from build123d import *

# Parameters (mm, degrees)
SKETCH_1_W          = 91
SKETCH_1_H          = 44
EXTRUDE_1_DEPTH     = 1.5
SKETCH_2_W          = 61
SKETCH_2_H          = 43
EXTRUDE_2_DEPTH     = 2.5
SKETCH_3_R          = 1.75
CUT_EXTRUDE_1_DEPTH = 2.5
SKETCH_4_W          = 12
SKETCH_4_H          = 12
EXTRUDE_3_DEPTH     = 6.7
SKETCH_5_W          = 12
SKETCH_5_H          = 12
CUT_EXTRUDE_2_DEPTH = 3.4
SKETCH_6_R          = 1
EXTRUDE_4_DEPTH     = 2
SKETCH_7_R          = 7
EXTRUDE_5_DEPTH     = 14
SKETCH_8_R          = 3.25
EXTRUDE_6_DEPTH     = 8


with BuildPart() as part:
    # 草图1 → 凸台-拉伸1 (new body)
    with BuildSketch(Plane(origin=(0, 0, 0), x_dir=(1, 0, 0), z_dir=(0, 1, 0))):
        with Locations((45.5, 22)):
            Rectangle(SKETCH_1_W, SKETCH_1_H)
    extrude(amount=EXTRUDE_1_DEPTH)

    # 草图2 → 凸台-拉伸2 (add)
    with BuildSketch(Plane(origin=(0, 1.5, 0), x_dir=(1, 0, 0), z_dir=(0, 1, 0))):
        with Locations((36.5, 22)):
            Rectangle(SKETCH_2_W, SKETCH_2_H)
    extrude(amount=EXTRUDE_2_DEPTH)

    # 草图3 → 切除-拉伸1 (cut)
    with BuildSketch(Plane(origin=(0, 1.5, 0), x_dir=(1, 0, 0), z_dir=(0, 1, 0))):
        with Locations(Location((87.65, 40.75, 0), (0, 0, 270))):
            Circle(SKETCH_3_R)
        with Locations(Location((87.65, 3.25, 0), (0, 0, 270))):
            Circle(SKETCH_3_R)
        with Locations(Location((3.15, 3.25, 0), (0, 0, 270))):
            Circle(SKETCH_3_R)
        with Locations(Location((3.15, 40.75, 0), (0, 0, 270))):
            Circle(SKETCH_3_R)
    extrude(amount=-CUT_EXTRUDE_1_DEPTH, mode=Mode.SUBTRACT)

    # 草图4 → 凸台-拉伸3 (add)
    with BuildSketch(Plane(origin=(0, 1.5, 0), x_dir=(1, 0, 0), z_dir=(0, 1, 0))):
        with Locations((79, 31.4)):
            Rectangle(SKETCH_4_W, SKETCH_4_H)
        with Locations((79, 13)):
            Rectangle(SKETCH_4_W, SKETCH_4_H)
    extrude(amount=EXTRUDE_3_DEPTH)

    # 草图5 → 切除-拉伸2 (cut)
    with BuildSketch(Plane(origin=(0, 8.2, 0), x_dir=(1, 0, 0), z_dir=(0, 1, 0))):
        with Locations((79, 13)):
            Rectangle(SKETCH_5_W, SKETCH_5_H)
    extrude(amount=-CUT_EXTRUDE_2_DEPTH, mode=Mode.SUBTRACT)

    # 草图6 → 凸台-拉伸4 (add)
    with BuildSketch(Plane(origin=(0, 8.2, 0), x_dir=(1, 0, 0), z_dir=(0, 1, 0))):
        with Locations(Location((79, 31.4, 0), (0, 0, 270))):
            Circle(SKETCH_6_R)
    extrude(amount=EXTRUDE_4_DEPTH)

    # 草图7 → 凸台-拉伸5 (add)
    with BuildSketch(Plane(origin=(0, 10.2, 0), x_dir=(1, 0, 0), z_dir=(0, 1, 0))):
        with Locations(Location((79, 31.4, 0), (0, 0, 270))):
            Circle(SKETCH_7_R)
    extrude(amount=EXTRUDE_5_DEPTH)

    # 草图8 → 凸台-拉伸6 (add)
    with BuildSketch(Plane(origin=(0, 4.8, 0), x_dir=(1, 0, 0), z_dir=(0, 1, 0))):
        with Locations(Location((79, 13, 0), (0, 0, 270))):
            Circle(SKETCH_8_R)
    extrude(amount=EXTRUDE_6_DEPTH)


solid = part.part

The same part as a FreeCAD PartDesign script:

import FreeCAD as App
import Part
import Sketcher
from FreeCAD import Vector


def add_polygon(sketch, points):
    """Adds a closed chain of lines whose ends are joined by coincident constraints."""
    first, n = sketch.GeometryCount, len(points)
    for a, b in zip(points, points[1:] + points[:1]):
        sketch.addGeometry(Part.LineSegment(App.Vector(*a, 0), App.Vector(*b, 0)), False)
    for i in range(n):
        sketch.addConstraint(Sketcher.Constraint("Coincident", first + i, 2, first + (i + 1) % n, 1))

doc = App.newDocument("Part")
params = doc.addObject("Spreadsheet::Sheet", "Params")
for row, (alias, value) in enumerate([
    ("sketch1_width", "91 mm"),
    ("sketch1_height", "44 mm"),
    ("pad1_length", "1.5 mm"),
    ("sketch2_width", "61 mm"),
    ("sketch2_height", "43 mm"),
    ("pad2_length", "2.5 mm"),
    ("sketch3_diameter", "3.5 mm"),
    ("pocket1_length", "2.5 mm"),
    ("sketch4_width", "12 mm"),
    ("pad3_length", "6.7 mm"),
    ("sketch5_width", "12 mm"),
    ("pocket2_length", "3.4 mm"),
    ("sketch6_diameter", "2 mm"),
    ("pad4_length", "2 mm"),
    ("sketch7_diameter", "14 mm"),
    ("pad5_length", "14 mm"),
    ("sketch8_diameter", "6.5 mm"),
    ("pad6_length", "8 mm"),
], start=1):
    params.set(f"A{row}", alias)
    params.set(f"B{row}", "=" + value)
    params.setAlias(f"B{row}", alias)

body = doc.addObject("PartDesign::Body", "Body")

# Sketch on XZ plane
sketch1 = body.newObject("Sketcher::SketchObject", "Sketch")
sketch1.AttachmentSupport = (doc.getObject("XZ_Plane"), [""])
sketch1.MapMode = "FlatFace"
add_polygon(sketch1, [(0, -44), (0, 0), (91, 0), (91, -44)])  # lines 0-3
sketch1.addConstraint(Sketcher.Constraint("Vertical", 0))
sketch1.addConstraint(Sketcher.Constraint("Horizontal", 1))
sketch1.addConstraint(Sketcher.Constraint("Vertical", 2))
sketch1.addConstraint(Sketcher.Constraint("Horizontal", 3))
sketch1.addConstraint(Sketcher.Constraint("Coincident", 0, 2, -1, 1))
sketch1.addConstraint(Sketcher.Constraint("DistanceX", 1, 1, 1, 2, 91.0))
sketch1.addConstraint(Sketcher.Constraint("DistanceY", 0, 1, 0, 2, 44.0))
sketch1.setExpression("Constraints[9]", "Params.sketch1_width")
sketch1.setExpression("Constraints[10]", "Params.sketch1_height")
pad1 = body.newObject("PartDesign::Pad", "Pad")
pad1.Profile = sketch1
pad1.setExpression("Length", "Params.pad1_length")
pad1.Reversed = True

# Sketch on XZ plane
sketch2 = body.newObject("Sketcher::SketchObject", "Sketch001")
sketch2.AttachmentSupport = (doc.getObject("XZ_Plane"), [""])
sketch2.MapMode = "FlatFace"
sketch2.AttachmentOffset = App.Placement(Vector(0, 0, -1.5), App.Rotation())
add_polygon(sketch2, [(6, -43.5), (6, -0.5), (67, -0.5), (67, -43.5)])  # lines 0-3
sketch2.addConstraint(Sketcher.Constraint("Vertical", 0))
sketch2.addConstraint(Sketcher.Constraint("Horizontal", 1))
sketch2.addConstraint(Sketcher.Constraint("Vertical", 2))
sketch2.addConstraint(Sketcher.Constraint("Horizontal", 3))
sketch2.addConstraint(Sketcher.Constraint("DistanceX", 1, 1, 1, 2, 61.0))
sketch2.addConstraint(Sketcher.Constraint("DistanceY", 0, 1, 0, 2, 43.0))
sketch2.addConstraint(Sketcher.Constraint("DistanceX", -1, 1, 0, 2, 6.0))
sketch2.addConstraint(Sketcher.Constraint("DistanceY", 0, 2, -1, 1, 0.5))
sketch2.setExpression("Constraints[8]", "Params.sketch2_width")
sketch2.setExpression("Constraints[9]", "Params.sketch2_height")
pad2 = body.newObject("PartDesign::Pad", "Pad001")
pad2.Profile = sketch2
pad2.setExpression("Length", "Params.pad2_length")
pad2.Reversed = True

# Sketch on XZ plane
sketch3 = body.newObject("Sketcher::SketchObject", "Sketch002")
sketch3.AttachmentSupport = (doc.getObject("XZ_Plane"), [""])
sketch3.MapMode = "FlatFace"
sketch3.AttachmentOffset = App.Placement(Vector(0, 0, -1.5), App.Rotation())
sketch3.addGeometry(Part.Circle(Vector(87.65, -40.75, 0), Vector(0, 0, 1), 1.75), False)
sketch3.addGeometry(Part.Circle(Vector(87.65, -3.25, 0), Vector(0, 0, 1), 1.75), False)
sketch3.addGeometry(Part.Circle(Vector(3.15, -3.25, 0), Vector(0, 0, 1), 1.75), False)
sketch3.addGeometry(Part.Circle(Vector(3.15, -40.75, 0), Vector(0, 0, 1), 1.75), False)
sketch3.addConstraint(Sketcher.Constraint("Equal", 0, 1))
sketch3.addConstraint(Sketcher.Constraint("Equal", 1, 2))
sketch3.addConstraint(Sketcher.Constraint("Equal", 2, 3))
sketch3.addConstraint(Sketcher.Constraint("Horizontal", 1, 3, 2, 3))
sketch3.addConstraint(Sketcher.Constraint("Horizontal", 0, 3, 3, 3))
sketch3.addConstraint(Sketcher.Constraint("Vertical", 0, 3, 1, 3))
sketch3.addConstraint(Sketcher.Constraint("Vertical", 2, 3, 3, 3))
sketch3.addConstraint(Sketcher.Constraint("Diameter", 0, 3.5))
sketch3.addConstraint(Sketcher.Constraint("DistanceY", 0, 3, 1, 3, 37.5))
sketch3.addConstraint(Sketcher.Constraint("DistanceX", 2, 3, 1, 3, 84.5))
sketch3.addConstraint(Sketcher.Constraint("DistanceX", -1, 1, 0, 3, 87.65))
sketch3.addConstraint(Sketcher.Constraint("DistanceY", 0, 3, -1, 1, 40.75))
sketch3.setExpression("Constraints[7]", "Params.sketch3_diameter")
pocket1 = body.newObject("PartDesign::Pocket", "Pocket")
pocket1.Profile = sketch3
pocket1.setExpression("Length", "Params.pocket1_length")
pocket1.Reversed = True

# Sketch on XZ plane
sketch4 = body.newObject("Sketcher::SketchObject", "Sketch003")
sketch4.AttachmentSupport = (doc.getObject("XZ_Plane"), [""])
sketch4.MapMode = "FlatFace"
sketch4.AttachmentOffset = App.Placement(Vector(0, 0, -1.5), App.Rotation())
add_polygon(sketch4, [(73, -37.4), (73, -25.4), (85, -25.4), (85, -37.4)])  # lines 0-3
add_polygon(sketch4, [(73, -19), (73, -7), (85, -7), (85, -19)])  # lines 4-7
sketch4.addConstraint(Sketcher.Constraint("Vertical", 0))
sketch4.addConstraint(Sketcher.Constraint("Horizontal", 1))
sketch4.addConstraint(Sketcher.Constraint("Vertical", 2))
sketch4.addConstraint(Sketcher.Constraint("Horizontal", 3))
sketch4.addConstraint(Sketcher.Constraint("Vertical", 4))
sketch4.addConstraint(Sketcher.Constraint("Horizontal", 5))
sketch4.addConstraint(Sketcher.Constraint("Vertical", 6))
sketch4.addConstraint(Sketcher.Constraint("Horizontal", 7))
sketch4.addConstraint(Sketcher.Constraint("Vertical", 3, 2, 4, 2))
sketch4.addConstraint(Sketcher.Constraint("Vertical", 2, 2, 5, 2))
sketch4.addConstraint(Sketcher.Constraint("Equal", 7, 0))
sketch4.addConstraint(Sketcher.Constraint("Equal", 2, 4))
sketch4.addConstraint(Sketcher.Constraint("DistanceX", 1, 1, 1, 2, 12.0))
sketch4.addConstraint(Sketcher.Constraint("DistanceX", -1, 1, 0, 2, 73.0))
sketch4.addConstraint(Sketcher.Constraint("DistanceY", 4, 2, -1, 1, 7.0))
sketch4.addConstraint(Sketcher.Constraint("DistanceY", 0, 2, -1, 1, 25.4))
sketch4.setExpression("Constraints[20]", "Params.sketch4_width")
pad3 = body.newObject("PartDesign::Pad", "Pad002")
pad3.Profile = sketch4
pad3.setExpression("Length", "Params.pad3_length")
pad3.Reversed = True

# Sketch on XZ plane
sketch5 = body.newObject("Sketcher::SketchObject", "Sketch004")
sketch5.AttachmentSupport = (doc.getObject("XZ_Plane"), [""])
sketch5.MapMode = "FlatFace"
sketch5.AttachmentOffset = App.Placement(Vector(0, 0, -8.2), App.Rotation())
add_polygon(sketch5, [(73, -19), (73, -7), (85, -7), (85, -19)])  # lines 0-3
sketch5.addConstraint(Sketcher.Constraint("Vertical", 0))
sketch5.addConstraint(Sketcher.Constraint("Horizontal", 1))
sketch5.addConstraint(Sketcher.Constraint("Vertical", 2))
sketch5.addConstraint(Sketcher.Constraint("Horizontal", 3))
sketch5.addConstraint(Sketcher.Constraint("Equal", 3, 0))
sketch5.addConstraint(Sketcher.Constraint("DistanceX", 1, 1, 1, 2, 12.0))
sketch5.addConstraint(Sketcher.Constraint("DistanceX", -1, 1, 0, 2, 73.0))
sketch5.addConstraint(Sketcher.Constraint("DistanceY", 0, 2, -1, 1, 7.0))
sketch5.setExpression("Constraints[9]", "Params.sketch5_width")
pocket2 = body.newObject("PartDesign::Pocket", "Pocket001")
pocket2.Profile = sketch5
pocket2.setExpression("Length", "Params.pocket2_length")
pocket2.Reversed = True

# Sketch on XZ plane
sketch6 = body.newObject("Sketcher::SketchObject", "Sketch005")
sketch6.AttachmentSupport = (doc.getObject("XZ_Plane"), [""])
sketch6.MapMode = "FlatFace"
sketch6.AttachmentOffset = App.Placement(Vector(0, 0, -8.2), App.Rotation())
sketch6.addGeometry(Part.Circle(Vector(79, -31.4, 0), Vector(0, 0, 1), 1), False)
sketch6.addConstraint(Sketcher.Constraint("Diameter", 0, 2.0))
sketch6.addConstraint(Sketcher.Constraint("DistanceX", -1, 1, 0, 3, 79.0))
sketch6.addConstraint(Sketcher.Constraint("DistanceY", 0, 3, -1, 1, 31.4))
sketch6.setExpression("Constraints[0]", "Params.sketch6_diameter")
pad4 = body.newObject("PartDesign::Pad", "Pad003")
pad4.Profile = sketch6
pad4.setExpression("Length", "Params.pad4_length")
pad4.Reversed = True

# Sketch on XZ plane
sketch7 = body.newObject("Sketcher::SketchObject", "Sketch006")
sketch7.AttachmentSupport = (doc.getObject("XZ_Plane"), [""])
sketch7.MapMode = "FlatFace"
sketch7.AttachmentOffset = App.Placement(Vector(0, 0, -10.2), App.Rotation())
sketch7.addGeometry(Part.Circle(Vector(79, -31.4, 0), Vector(0, 0, 1), 7), False)
sketch7.addConstraint(Sketcher.Constraint("Diameter", 0, 14.0))
sketch7.addConstraint(Sketcher.Constraint("DistanceX", -1, 1, 0, 3, 79.0))
sketch7.addConstraint(Sketcher.Constraint("DistanceY", 0, 3, -1, 1, 31.4))
sketch7.setExpression("Constraints[0]", "Params.sketch7_diameter")
pad5 = body.newObject("PartDesign::Pad", "Pad004")
pad5.Profile = sketch7
pad5.setExpression("Length", "Params.pad5_length")
pad5.Reversed = True

# Sketch on XZ plane
sketch8 = body.newObject("Sketcher::SketchObject", "Sketch007")
sketch8.AttachmentSupport = (doc.getObject("XZ_Plane"), [""])
sketch8.MapMode = "FlatFace"
sketch8.AttachmentOffset = App.Placement(Vector(0, 0, -4.8), App.Rotation())
sketch8.addGeometry(Part.Circle(Vector(79, -13, 0), Vector(0, 0, 1), 3.25), False)
sketch8.addConstraint(Sketcher.Constraint("Diameter", 0, 6.5))
sketch8.addConstraint(Sketcher.Constraint("DistanceX", -1, 1, 0, 3, 79.0))
sketch8.addConstraint(Sketcher.Constraint("DistanceY", 0, 3, -1, 1, 13.0))
sketch8.setExpression("Constraints[0]", "Params.sketch8_diameter")
pad6 = body.newObject("PartDesign::Pad", "Pad005")
pad6.Profile = sketch8
pad6.setExpression("Length", "Params.pad6_length")
pad6.Reversed = True

doc.recompute()
